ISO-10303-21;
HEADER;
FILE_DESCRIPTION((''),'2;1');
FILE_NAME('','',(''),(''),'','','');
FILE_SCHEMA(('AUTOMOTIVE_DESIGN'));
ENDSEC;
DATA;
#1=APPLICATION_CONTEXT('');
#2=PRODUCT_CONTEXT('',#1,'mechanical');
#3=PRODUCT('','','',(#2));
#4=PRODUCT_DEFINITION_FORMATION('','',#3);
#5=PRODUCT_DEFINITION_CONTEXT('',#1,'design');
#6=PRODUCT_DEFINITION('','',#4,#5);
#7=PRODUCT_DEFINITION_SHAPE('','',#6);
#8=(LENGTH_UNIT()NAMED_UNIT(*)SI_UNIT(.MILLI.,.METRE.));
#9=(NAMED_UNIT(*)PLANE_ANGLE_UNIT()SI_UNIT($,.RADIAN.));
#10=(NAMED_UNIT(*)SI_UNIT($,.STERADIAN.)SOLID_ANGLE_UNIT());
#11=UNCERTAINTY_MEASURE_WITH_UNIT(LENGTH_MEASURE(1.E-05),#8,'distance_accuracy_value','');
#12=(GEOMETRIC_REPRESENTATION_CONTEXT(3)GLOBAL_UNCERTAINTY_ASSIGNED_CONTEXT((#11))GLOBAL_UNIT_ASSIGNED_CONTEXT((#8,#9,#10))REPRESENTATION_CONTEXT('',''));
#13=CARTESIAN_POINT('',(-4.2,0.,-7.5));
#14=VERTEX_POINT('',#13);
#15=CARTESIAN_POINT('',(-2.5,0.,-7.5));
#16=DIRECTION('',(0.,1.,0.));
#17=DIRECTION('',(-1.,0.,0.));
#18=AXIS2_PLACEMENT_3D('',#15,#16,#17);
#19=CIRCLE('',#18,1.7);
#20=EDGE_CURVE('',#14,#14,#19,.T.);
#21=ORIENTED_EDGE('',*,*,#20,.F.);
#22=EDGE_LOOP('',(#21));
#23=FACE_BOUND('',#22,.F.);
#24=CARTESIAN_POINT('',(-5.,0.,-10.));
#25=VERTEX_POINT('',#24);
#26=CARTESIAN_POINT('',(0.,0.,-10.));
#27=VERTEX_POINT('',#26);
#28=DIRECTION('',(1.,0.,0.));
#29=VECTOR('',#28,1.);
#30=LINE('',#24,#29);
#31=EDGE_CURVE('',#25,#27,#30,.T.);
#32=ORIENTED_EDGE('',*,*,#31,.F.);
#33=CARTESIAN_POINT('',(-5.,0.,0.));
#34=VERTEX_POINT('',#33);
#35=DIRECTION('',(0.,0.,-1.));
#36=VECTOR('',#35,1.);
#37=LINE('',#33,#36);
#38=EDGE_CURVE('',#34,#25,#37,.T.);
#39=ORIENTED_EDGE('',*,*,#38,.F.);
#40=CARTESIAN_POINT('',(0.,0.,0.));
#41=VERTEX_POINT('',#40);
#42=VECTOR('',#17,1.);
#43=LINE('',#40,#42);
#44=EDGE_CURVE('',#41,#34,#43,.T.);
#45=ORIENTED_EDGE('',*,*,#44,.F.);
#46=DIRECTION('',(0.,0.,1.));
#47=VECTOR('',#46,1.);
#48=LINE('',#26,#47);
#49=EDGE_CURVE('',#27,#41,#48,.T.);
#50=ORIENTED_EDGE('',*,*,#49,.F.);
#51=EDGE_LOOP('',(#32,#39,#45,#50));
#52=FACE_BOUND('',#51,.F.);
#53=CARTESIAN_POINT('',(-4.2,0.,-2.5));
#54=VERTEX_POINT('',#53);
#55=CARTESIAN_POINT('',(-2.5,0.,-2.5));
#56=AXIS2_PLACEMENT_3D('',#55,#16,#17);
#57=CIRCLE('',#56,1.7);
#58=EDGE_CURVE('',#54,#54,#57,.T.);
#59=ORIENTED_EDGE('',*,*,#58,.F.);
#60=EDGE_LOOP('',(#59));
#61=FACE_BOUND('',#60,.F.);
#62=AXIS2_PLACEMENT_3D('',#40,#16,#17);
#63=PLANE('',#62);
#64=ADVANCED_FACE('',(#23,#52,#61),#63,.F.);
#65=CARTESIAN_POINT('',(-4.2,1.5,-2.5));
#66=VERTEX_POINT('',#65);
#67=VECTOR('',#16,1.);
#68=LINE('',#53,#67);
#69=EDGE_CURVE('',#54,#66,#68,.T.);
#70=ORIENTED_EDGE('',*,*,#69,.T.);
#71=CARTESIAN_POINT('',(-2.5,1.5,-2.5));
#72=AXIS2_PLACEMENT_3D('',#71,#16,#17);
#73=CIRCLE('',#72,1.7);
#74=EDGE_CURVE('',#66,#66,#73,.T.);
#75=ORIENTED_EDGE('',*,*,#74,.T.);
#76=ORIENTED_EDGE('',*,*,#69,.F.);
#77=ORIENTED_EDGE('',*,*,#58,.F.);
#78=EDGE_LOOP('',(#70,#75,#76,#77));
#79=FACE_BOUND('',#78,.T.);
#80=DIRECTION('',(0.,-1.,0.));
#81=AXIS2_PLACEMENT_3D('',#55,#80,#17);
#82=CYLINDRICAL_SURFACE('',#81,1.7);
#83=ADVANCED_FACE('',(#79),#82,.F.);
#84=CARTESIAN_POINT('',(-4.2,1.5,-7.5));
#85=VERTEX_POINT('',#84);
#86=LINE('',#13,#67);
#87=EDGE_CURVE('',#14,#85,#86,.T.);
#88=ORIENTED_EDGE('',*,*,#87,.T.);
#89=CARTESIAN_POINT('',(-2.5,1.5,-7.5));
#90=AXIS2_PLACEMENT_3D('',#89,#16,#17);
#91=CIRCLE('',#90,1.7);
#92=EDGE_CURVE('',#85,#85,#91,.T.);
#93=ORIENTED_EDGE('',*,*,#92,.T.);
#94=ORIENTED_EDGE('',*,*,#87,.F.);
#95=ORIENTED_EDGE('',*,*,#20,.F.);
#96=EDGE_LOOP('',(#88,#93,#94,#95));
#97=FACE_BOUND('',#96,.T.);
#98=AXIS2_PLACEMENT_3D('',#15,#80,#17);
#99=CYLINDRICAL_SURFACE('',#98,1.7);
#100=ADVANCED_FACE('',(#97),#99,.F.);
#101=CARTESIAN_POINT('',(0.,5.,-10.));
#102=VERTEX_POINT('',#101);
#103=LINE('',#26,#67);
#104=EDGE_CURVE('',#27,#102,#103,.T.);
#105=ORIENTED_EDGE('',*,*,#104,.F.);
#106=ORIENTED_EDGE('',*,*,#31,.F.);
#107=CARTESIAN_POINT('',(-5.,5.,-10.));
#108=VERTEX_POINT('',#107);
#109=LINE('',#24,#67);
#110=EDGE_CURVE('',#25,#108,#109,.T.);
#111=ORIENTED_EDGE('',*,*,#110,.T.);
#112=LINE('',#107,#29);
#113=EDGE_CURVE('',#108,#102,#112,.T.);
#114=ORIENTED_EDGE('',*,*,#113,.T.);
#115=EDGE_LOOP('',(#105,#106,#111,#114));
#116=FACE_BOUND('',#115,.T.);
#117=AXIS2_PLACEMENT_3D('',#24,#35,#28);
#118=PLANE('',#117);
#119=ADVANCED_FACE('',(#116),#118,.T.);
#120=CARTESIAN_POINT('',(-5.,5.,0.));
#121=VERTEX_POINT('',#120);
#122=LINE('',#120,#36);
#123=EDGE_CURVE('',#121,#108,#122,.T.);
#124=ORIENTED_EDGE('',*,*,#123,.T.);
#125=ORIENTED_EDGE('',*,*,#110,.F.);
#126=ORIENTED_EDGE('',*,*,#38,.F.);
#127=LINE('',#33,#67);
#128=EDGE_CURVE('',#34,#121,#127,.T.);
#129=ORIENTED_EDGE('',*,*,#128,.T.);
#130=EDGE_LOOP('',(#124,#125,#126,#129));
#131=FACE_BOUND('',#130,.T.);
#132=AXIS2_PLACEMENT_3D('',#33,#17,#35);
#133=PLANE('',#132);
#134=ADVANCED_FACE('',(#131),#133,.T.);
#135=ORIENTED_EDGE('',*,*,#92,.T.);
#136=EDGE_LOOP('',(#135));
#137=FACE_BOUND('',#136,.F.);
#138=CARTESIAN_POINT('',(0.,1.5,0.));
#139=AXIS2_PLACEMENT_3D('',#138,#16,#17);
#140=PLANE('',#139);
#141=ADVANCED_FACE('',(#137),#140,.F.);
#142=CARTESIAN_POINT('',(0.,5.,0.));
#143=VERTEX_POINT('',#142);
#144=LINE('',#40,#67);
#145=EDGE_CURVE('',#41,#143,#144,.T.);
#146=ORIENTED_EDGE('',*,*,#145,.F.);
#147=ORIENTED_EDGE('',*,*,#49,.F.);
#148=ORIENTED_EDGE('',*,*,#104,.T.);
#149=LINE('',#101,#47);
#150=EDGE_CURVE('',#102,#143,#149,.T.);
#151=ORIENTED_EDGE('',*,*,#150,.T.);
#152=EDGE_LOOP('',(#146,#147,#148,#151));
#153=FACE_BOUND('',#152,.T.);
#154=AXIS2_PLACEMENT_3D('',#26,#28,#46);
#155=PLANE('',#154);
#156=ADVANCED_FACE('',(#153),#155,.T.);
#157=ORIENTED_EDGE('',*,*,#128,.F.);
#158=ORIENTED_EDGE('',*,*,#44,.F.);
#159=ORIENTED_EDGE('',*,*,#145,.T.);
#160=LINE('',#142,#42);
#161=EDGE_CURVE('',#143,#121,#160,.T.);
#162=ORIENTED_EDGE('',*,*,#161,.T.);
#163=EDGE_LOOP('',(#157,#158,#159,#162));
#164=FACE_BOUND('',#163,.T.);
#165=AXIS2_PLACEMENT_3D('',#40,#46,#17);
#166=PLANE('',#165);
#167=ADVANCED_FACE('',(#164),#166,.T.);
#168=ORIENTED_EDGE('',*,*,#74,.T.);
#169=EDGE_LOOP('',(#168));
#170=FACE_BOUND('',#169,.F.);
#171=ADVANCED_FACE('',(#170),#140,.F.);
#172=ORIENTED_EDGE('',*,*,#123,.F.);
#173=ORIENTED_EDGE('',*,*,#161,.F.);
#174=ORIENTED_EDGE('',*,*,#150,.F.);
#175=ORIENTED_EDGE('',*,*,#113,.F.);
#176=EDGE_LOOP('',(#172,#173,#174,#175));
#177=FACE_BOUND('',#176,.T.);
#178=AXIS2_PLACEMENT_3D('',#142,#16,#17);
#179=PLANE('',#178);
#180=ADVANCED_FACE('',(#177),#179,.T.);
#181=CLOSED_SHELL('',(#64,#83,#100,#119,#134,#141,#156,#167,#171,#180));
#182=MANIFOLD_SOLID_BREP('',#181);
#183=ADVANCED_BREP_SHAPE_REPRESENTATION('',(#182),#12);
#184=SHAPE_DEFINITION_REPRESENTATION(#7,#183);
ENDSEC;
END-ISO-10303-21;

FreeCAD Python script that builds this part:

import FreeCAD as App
import Part
import Sketcher
Q = App.Units.Quantity


def add_polygon(sketch, points):
    """Adds a closed chain of lines whose ends are joined by coincident constraints."""
    first, n = sketch.GeometryCount, len(points)
    for a, b in zip(points, points[1:] + points[:1]):
        sketch.addGeometry(Part.LineSegment(App.Vector(*a, 0), App.Vector(*b, 0)), False)
    for i in range(n):
        sketch.addConstraint(Sketcher.Constraint("Coincident", first + i, 2, first + (i + 1) % n, 1))

doc = App.newDocument("Part")
body = doc.addObject("PartDesign::Body", "Body")

sketch1 = body.newObject("Sketcher::SketchObject", "Sketch")
sketch1.AttachmentSupport = (doc.getObject("XZ_Plane"), [""])
sketch1.MapMode = "FlatFace"
add_polygon(sketch1, [(-5, 0), (0, 0), (0, -10), (-5, -10)])
sketch1.addConstraint([
    Sketcher.Constraint("Horizontal", 0),
    Sketcher.Constraint("Vertical", 1),
    Sketcher.Constraint("Horizontal", 2),
    Sketcher.Constraint("Vertical", 3),
    Sketcher.Constraint("Coincident", 0, 2, -1, 1),
    Sketcher.Constraint("DistanceX", 0, 1, 0, 2, Q("5 mm")),
    Sketcher.Constraint("DistanceY", 1, 2, 1, 1, Q("10 mm")),
])
pad1 = body.newObject("PartDesign::Pad", "Pad")
pad1.Profile = sketch1
pad1.Length = 5
pad1.Reversed = True

sketch2 = body.newObject("Sketcher::SketchObject", "Sketch001")
sketch2.AttachmentSupport = (doc.getObject("XZ_Plane"), [""])
sketch2.MapMode = "FlatFace"
sketch2.addGeometry([
    Part.Circle(App.Vector(-2.5, -2.5, 0), App.Vector(0, 0, 1), 1.7),
    Part.Circle(App.Vector(-2.5, -7.5, 0), App.Vector(0, 0, 1), 1.7),
], False)
sketch2.addConstraint([
    Sketcher.Constraint("Equal", 0, 1),
    Sketcher.Constraint("Vertical", 0, 3, 1, 3),
    Sketcher.Constraint("Diameter", 0, Q("3.4 mm")),
    Sketcher.Constraint("DistanceY", 1, 3, 0, 3, Q("5 mm")),
    Sketcher.Constraint("DistanceX", 0, 3, -1, 1, Q("2.5 mm")),
    Sketcher.Constraint("DistanceY", 0, 3, -1, 1, Q("2.5 mm")),
])
pocket1 = body.newObject("PartDesign::Pocket", "Pocket")
pocket1.Profile = sketch2
pocket1.Length = 1.5

doc.recompute()
